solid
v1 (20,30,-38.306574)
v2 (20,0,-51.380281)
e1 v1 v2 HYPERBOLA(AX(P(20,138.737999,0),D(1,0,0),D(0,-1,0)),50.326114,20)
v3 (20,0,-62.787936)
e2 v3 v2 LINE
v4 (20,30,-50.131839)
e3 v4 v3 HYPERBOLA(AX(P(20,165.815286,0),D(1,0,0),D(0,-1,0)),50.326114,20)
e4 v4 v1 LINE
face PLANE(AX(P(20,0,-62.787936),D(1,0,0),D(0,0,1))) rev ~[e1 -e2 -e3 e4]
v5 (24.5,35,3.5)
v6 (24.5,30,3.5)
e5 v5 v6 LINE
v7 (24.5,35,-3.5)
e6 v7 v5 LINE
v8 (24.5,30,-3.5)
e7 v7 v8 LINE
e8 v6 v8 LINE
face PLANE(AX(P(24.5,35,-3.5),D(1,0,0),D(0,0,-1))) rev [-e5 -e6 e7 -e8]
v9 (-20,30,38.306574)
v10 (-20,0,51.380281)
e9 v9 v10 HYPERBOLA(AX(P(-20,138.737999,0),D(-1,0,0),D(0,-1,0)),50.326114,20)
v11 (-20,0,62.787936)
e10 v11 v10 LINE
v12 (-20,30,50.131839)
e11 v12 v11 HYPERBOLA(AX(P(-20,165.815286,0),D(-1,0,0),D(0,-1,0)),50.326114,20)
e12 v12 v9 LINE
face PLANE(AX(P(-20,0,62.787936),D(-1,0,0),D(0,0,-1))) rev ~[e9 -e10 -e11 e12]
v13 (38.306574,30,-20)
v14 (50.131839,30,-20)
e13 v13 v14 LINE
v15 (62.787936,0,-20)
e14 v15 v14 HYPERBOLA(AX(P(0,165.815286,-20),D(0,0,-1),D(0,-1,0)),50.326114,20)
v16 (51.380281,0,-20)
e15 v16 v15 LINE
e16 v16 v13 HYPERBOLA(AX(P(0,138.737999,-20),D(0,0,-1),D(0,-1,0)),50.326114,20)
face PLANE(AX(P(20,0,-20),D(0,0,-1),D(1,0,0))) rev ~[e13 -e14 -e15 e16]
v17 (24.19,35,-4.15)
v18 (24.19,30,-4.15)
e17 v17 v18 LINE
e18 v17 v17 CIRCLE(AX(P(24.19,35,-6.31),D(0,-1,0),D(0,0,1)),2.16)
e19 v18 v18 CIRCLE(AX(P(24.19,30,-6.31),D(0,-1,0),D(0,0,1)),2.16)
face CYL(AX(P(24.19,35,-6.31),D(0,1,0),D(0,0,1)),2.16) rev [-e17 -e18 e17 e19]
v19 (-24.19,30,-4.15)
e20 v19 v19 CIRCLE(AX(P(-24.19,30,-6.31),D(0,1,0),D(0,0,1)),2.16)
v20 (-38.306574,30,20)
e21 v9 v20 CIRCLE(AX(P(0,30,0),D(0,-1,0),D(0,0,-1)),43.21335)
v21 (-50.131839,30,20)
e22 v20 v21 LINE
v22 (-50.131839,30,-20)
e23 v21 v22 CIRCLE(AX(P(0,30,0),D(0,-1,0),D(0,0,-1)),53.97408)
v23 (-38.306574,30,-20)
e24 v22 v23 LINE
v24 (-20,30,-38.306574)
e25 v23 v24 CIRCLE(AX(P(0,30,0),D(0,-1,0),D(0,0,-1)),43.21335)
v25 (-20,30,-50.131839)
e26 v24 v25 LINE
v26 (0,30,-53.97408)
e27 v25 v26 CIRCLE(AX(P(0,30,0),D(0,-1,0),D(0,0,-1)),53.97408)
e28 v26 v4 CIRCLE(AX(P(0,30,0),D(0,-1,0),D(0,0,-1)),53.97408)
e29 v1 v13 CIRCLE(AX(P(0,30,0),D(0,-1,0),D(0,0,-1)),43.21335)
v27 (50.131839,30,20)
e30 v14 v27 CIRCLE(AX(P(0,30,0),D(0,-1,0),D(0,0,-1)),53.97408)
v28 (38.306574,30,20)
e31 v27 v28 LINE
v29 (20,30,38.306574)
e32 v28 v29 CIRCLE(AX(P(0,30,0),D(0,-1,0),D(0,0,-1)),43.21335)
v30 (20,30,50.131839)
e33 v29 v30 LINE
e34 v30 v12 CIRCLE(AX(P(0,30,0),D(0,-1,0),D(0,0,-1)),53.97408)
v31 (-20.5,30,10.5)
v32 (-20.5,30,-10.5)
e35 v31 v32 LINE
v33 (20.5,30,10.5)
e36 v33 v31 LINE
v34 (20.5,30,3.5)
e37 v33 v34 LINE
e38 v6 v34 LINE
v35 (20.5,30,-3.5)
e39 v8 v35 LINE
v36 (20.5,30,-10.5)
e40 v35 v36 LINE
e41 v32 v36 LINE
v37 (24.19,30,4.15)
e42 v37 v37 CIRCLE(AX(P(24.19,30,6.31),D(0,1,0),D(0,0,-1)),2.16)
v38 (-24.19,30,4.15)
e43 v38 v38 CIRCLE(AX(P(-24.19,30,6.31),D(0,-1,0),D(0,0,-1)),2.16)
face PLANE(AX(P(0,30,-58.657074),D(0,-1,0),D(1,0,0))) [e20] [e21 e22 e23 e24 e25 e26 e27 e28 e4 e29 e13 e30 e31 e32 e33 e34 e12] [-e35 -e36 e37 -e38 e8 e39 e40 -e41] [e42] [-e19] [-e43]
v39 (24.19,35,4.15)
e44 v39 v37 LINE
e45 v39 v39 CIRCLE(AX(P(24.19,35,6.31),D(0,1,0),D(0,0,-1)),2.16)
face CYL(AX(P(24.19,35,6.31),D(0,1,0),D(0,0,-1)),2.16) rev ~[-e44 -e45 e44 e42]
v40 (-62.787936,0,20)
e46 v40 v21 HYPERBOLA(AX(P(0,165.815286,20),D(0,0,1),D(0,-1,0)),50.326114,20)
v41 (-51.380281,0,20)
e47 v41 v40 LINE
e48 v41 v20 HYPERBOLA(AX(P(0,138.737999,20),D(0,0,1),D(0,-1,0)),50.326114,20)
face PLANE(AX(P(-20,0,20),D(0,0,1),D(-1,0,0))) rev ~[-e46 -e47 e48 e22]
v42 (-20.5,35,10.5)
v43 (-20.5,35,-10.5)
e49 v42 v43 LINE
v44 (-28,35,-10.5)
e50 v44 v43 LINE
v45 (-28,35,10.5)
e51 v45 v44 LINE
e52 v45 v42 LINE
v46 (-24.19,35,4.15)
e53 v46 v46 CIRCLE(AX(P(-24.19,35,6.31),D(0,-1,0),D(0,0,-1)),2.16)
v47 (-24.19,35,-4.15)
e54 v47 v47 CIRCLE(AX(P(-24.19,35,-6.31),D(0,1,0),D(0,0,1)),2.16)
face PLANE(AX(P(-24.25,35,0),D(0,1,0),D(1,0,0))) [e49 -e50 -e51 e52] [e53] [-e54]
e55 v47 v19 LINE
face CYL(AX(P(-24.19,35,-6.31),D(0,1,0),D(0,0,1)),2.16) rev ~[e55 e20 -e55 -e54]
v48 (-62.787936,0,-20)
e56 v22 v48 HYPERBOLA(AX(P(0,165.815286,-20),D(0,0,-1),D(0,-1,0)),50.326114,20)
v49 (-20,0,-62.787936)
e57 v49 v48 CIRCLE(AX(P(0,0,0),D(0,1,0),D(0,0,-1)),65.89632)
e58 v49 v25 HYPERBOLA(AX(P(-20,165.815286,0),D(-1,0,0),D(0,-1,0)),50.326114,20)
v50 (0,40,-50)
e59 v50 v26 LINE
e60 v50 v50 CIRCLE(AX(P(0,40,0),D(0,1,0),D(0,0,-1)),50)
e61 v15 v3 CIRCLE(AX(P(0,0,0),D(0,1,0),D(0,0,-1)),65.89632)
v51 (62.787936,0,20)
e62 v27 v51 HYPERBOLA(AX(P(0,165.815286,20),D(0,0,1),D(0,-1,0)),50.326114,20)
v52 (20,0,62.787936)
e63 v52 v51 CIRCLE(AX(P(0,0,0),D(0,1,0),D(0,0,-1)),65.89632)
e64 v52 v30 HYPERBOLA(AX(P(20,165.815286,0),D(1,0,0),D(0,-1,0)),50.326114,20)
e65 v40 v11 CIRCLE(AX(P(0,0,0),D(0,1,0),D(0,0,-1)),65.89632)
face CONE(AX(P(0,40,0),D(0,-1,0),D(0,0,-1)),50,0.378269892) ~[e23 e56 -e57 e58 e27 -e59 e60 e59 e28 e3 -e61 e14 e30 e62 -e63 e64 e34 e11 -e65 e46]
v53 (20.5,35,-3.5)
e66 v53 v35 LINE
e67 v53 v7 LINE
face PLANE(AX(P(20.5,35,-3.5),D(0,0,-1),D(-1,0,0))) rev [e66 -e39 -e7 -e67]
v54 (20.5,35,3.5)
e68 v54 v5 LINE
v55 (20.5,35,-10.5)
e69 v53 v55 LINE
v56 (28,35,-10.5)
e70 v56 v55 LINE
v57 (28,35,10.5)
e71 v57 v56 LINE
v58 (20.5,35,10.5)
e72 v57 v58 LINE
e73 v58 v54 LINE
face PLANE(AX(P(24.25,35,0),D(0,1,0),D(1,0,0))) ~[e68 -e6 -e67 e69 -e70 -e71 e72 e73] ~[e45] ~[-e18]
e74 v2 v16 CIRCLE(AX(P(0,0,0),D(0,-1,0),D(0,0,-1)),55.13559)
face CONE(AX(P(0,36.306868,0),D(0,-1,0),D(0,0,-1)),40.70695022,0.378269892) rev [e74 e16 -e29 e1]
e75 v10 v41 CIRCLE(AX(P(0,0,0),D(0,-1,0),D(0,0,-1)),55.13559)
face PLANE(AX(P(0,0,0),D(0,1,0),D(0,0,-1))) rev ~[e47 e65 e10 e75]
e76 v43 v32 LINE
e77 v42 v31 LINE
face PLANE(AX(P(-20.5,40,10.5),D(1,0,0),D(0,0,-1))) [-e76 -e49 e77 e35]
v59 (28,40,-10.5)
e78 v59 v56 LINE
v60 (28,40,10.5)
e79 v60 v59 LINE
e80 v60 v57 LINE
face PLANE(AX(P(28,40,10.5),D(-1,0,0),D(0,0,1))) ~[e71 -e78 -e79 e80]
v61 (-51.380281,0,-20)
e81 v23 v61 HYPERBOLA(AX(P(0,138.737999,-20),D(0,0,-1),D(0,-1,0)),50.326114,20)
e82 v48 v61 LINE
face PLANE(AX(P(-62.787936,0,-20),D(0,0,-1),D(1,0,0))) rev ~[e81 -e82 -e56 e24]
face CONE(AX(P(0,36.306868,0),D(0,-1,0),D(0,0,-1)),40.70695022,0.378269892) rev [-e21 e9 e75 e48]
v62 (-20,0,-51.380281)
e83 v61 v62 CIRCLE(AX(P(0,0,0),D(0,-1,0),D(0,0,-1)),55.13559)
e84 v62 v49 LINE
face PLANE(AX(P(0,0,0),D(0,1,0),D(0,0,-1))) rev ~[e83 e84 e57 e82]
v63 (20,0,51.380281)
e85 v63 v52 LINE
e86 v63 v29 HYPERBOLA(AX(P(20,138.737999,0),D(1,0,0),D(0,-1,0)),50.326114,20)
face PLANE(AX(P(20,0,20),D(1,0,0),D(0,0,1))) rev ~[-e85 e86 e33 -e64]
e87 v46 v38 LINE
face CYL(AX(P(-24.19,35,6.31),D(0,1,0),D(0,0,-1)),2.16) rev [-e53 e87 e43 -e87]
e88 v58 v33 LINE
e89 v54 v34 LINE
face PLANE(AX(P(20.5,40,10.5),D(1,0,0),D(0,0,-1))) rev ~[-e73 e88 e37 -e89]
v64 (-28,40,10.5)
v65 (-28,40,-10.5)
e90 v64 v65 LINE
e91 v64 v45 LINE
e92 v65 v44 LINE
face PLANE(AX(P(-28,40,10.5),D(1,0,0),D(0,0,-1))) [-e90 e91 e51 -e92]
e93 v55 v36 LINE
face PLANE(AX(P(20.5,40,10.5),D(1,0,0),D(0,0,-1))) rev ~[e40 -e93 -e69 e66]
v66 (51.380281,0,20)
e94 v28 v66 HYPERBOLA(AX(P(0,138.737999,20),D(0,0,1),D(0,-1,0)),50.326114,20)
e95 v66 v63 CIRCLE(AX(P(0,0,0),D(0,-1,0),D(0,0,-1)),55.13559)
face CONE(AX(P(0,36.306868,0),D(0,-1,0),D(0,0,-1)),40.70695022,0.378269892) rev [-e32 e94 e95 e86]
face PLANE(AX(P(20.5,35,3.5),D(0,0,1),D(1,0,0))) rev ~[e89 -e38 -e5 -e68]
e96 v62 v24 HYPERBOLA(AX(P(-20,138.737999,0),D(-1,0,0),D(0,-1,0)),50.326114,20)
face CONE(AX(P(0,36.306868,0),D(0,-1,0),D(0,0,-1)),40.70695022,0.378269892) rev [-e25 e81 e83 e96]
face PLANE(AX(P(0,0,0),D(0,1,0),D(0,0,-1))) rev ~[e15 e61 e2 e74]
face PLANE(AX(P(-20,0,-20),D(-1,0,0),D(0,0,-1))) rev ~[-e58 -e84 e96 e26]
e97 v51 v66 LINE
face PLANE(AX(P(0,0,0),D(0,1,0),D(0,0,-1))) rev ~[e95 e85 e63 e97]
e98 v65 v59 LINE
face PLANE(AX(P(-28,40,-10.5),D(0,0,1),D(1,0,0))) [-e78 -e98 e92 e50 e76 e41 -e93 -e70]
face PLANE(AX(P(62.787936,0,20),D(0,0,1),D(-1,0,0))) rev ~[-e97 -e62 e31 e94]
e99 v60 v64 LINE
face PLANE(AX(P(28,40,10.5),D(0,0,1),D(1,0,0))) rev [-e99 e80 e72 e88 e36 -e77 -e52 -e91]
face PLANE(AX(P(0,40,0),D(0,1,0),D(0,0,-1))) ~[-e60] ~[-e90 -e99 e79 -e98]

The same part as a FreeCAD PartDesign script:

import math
import FreeCAD as App
import Part
import Sketcher

V = App.Vector


def faces_at(feature, points):
    """Names of the faces that lie closest to the given points."""
    faces = feature.Shape.Faces
    near = lambda p: min(range(len(faces)), key=lambda i: faces[i].distToShape(Part.Vertex(*p))[0])
    return sorted({f"Face{near(p) + 1}" for p in points})


def add_polygon(sketch, points):
    """Adds a closed chain of lines whose ends are joined by coincident constraints."""
    first, n = sketch.GeometryCount, len(points)
    for a, b in zip(points, points[1:] + points[:1]):
        sketch.addGeometry(Part.LineSegment(App.Vector(*a, 0), App.Vector(*b, 0)), False)
    for i in range(n):
        sketch.addConstraint(Sketcher.Constraint("Coincident", first + i, 2, first + (i + 1) % n, 1))

doc = App.newDocument("Part")
params = doc.addObject("Spreadsheet::Sheet", "Params")
for row, (alias, value) in enumerate([
    ("sketch1_width", "50 mm"),
    ("sketch1_height", "40 mm"),
    ("revolution_angle", "360 deg"),
    ("thickness_wall", "10 mm"),
    ("sketch2_width", "41 mm"),
    ("sketch2_height", "21 mm"),
    ("pocket1_length", "10 mm"),
    ("sketch3_height", "21 mm"),
    ("sketch3_width", "7.5 mm"),
    ("pocket2_length", "5 mm"),
    ("sketch4_diameter", "4.32 mm"),
    ("pocket3_length", "5 mm"),
    ("sketch5_diameter", "4.32 mm"),
    ("pocket4_length", "5 mm"),
    ("sketch6_width", "4 mm"),
    ("sketch6_height", "3.5 mm"),
    ("pocket5_length", "10 mm"),
    ("sketch7_width", "40 mm"),
    ("pocket6_length", "30 mm"),
], start=1):
    params.set(f"A{row}", alias)
    params.set(f"B{row}", "=" + value)
    params.setAlias(f"B{row}", alias)

body = doc.addObject("PartDesign::Body", "Body")

# Sketch on XY plane
sketch1 = doc.addObject("Sketcher::SketchObject", "Sketch")
body.addObject(sketch1)
sketch1.AttachmentSupport = (doc.XY_Plane, [""])
sketch1.MapMode = "FlatFace"
add_polygon(sketch1, [(0, 0), (0, 40), (-50, 40), (-66, 0)])  # lines 0-3
sketch1.addConstraint(Sketcher.Constraint("Vertical", 0))
sketch1.addConstraint(Sketcher.Constraint("Horizontal", 1))
sketch1.addConstraint(Sketcher.Constraint("Horizontal", 3))
sketch1.addConstraint(Sketcher.Constraint("Coincident", 3, 2, -1, 1))
sketch1.addConstraint(Sketcher.Constraint("DistanceX", 1, 2, 1, 1, 50.0))
sketch1.addConstraint(Sketcher.Constraint("DistanceY", 0, 1, 0, 2, 40.0))
sketch1.addConstraint(Sketcher.Constraint("DistanceX", 3, 1, 3, 2, 65.89632))
sketch1.setExpression("Constraints[8]", "Params.sketch1_width")
sketch1.setExpression("Constraints[9]", "Params.sketch1_height")
revolution = doc.addObject("PartDesign::Revolution", "Revolution")
body.addObject(revolution)
revolution.Profile = sketch1
revolution.ReferenceAxis = (sketch1, ["V_Axis"])
revolution.setExpression("Angle", "Params.revolution_angle")
doc.recompute()

thickness = doc.addObject("PartDesign::Thickness", "Thickness")
body.addObject(thickness)
thickness.Base = (revolution, faces_at(revolution, [(0, 0, 0)]))
thickness.setExpression("Value", "Params.thickness_wall")
thickness.Reversed = True
thickness.Join = "Intersection"

# Sketch on XZ plane
sketch2 = doc.addObject("Sketcher::SketchObject", "Sketch001")
body.addObject(sketch2)
sketch2.AttachmentSupport = (doc.XZ_Plane, [""])
sketch2.MapMode = "FlatFace"
sketch2.AttachmentOffset = App.Placement(V(0, 0, -40), App.Rotation())
add_polygon(sketch2, [(-20, -10), (-20, 10), (20, 10), (20, -10)])  # lines 0-3
sketch2.addConstraint(Sketcher.Constraint("Vertical", 0))
sketch2.addConstraint(Sketcher.Constraint("Horizontal", 1))
sketch2.addConstraint(Sketcher.Constraint("Vertical", 2))
sketch2.addConstraint(Sketcher.Constraint("Horizontal", 3))
sketch2.addConstraint(Sketcher.Constraint("Symmetric", 0, 2, 2, 2, -1, 1))
sketch2.addConstraint(Sketcher.Constraint("DistanceX", 1, 1, 1, 2, 41.0))
sketch2.addConstraint(Sketcher.Constraint("DistanceY", 0, 1, 0, 2, 21.0))
sketch2.setExpression("Constraints[9]", "Params.sketch2_width")
sketch2.setExpression("Constraints[10]", "Params.sketch2_height")
pocket1 = doc.addObject("PartDesign::Pocket", "Pocket")
body.addObject(pocket1)
pocket1.Profile = sketch2
pocket1.setExpression("Length", "Params.pocket1_length")
pocket1.Reversed = True

# Sketch on XZ plane
sketch3 = doc.addObject("Sketcher::SketchObject", "Sketch002")
body.addObject(sketch3)
sketch3.AttachmentSupport = (doc.XZ_Plane, [""])
sketch3.MapMode = "FlatFace"
sketch3.AttachmentOffset = App.Placement(V(0, 0, -40), App.Rotation())
add_polygon(sketch3, [(-28, -10), (-28, 10), (-20, 10), (-20, -10)])  # lines 0-3
sketch3.addConstraint(Sketcher.Constraint("Vertical", 0))
sketch3.addConstraint(Sketcher.Constraint("Horizontal", 1))
sketch3.addConstraint(Sketcher.Constraint("Vertical", 2))
sketch3.addConstraint(Sketcher.Constraint("Horizontal", 3))
sketch3.addConstraint(Sketcher.Constraint("DistanceY", 0, 1, 0, 2, 21.0))
sketch3.addConstraint(Sketcher.Constraint("DistanceX", 1, 1, 1, 2, 7.5))
sketch3.addConstraint(Sketcher.Constraint("DistanceX", 0, 2, -1, 1, 28.0))
sketch3.addConstraint(Sketcher.Constraint("DistanceY", -1, 1, 0, 2, 10.5))
sketch3.setExpression("Constraints[8]", "Params.sketch3_height")
sketch3.setExpression("Constraints[9]", "Params.sketch3_width")
pocket2 = doc.addObject("PartDesign::Pocket", "Pocket001")
body.addObject(pocket2)
pocket2.Profile = sketch3
pocket2.setExpression("Length", "Params.pocket2_length")
pocket2.Reversed = True

# Sketch on XZ plane
sketch4 = doc.addObject("Sketcher::SketchObject", "Sketch003")
body.addObject(sketch4)
sketch4.AttachmentSupport = (doc.XZ_Plane, [""])
sketch4.MapMode = "FlatFace"
sketch4.AttachmentOffset = App.Placement(V(0, 0, -35), App.Rotation())
sketch4.addGeometry(Part.Circle(V(-24.2, -6.3, 0), V(0, 0, 1), 2.2), False)
sketch4.addConstraint(Sketcher.Constraint("Diameter", 0, 4.32))
sketch4.addConstraint(Sketcher.Constraint("DistanceX", 0, 3, -1, 1, 24.19))
sketch4.addConstraint(Sketcher.Constraint("DistanceY", 0, 3, -1, 1, 6.31))
sketch4.setExpression("Constraints[0]", "Params.sketch4_diameter")
pocket3 = doc.addObject("PartDesign::Pocket", "Pocket002")
body.addObject(pocket3)
pocket3.Profile = sketch4
pocket3.setExpression("Length", "Params.pocket3_length")
pocket3.Reversed = True
doc.recompute()

mirrored = doc.addObject("PartDesign::Mirrored", "Mirrored")
body.addObject(mirrored)
mirrored.Originals = [pocket3]
mirrored.MirrorPlane = (doc.XY_Plane, [""])
body.Tip = mirrored
doc.recompute()

mirrored2 = doc.addObject("PartDesign::Mirrored", "Mirrored001")
body.addObject(mirrored2)
mirrored2.Originals = [pocket2, pocket3]
mirrored2.MirrorPlane = (doc.YZ_Plane, [""])
body.Tip = mirrored2

# Sketch on XZ plane
sketch5 = doc.addObject("Sketcher::SketchObject", "Sketch004")
body.addObject(sketch5)
sketch5.AttachmentSupport = (doc.XZ_Plane, [""])
sketch5.MapMode = "FlatFace"
sketch5.AttachmentOffset = App.Placement(V(0, 0, -35), App.Rotation())
sketch5.addGeometry(Part.Circle(V(24.2, 6.3, 0), V(0, 0, 1), 2.2), False)
sketch5.addConstraint(Sketcher.Constraint("Diameter", 0, 4.32))
sketch5.addConstraint(Sketcher.Constraint("DistanceX", -1, 1, 0, 3, 24.19))
sketch5.addConstraint(Sketcher.Constraint("DistanceY", -1, 1, 0, 3, 6.31))
sketch5.setExpression("Constraints[0]", "Params.sketch5_diameter")
pocket4 = doc.addObject("PartDesign::Pocket", "Pocket003")
body.addObject(pocket4)
pocket4.Profile = sketch5
pocket4.setExpression("Length", "Params.pocket4_length")
pocket4.Reversed = True

# Sketch on XZ plane
sketch6 = doc.addObject("Sketcher::SketchObject", "Sketch005")
body.addObject(sketch6)
sketch6.AttachmentSupport = (doc.XZ_Plane, [""])
sketch6.MapMode = "FlatFace"
sketch6.AttachmentOffset = App.Placement(V(0, 0, -35), App.Rotation())
add_polygon(sketch6, [(20.5, 0), (20.5, 3.5), (24.5, 3.5), (24.5, 0)])  # lines 0-3
sketch6.addConstraint(Sketcher.Constraint("Vertical", 0))
sketch6.addConstraint(Sketcher.Constraint("Horizontal", 1))
sketch6.addConstraint(Sketcher.Constraint("Vertical", 2))
sketch6.addConstraint(Sketcher.Constraint("Horizontal", 3))
sketch6.addConstraint(Sketcher.Constraint("PointOnObject", 2, 2, -1))
sketch6.addConstraint(Sketcher.Constraint("DistanceX", 1, 1, 1, 2, 4.0))
sketch6.addConstraint(Sketcher.Constraint("DistanceY", 0, 1, 0, 2, 3.5))
sketch6.addConstraint(Sketcher.Constraint("DistanceX", -1, 1, 0, 2, 20.5))
sketch6.setExpression("Constraints[9]", "Params.sketch6_width")
sketch6.setExpression("Constraints[10]", "Params.sketch6_height")
pocket5 = doc.addObject("PartDesign::Pocket", "Pocket004")
body.addObject(pocket5)
pocket5.Profile = sketch6
pocket5.setExpression("Length", "Params.pocket5_length")
pocket5.Reversed = True
doc.recompute()

mirrored3 = doc.addObject("PartDesign::Mirrored", "Mirrored002")
body.addObject(mirrored3)
mirrored3.Originals = [pocket5]
mirrored3.MirrorPlane = (doc.XY_Plane, [""])
body.Tip = mirrored3

# Sketch on XZ plane
sketch7 = doc.addObject("Sketcher::SketchObject", "Sketch006")
body.addObject(sketch7)
sketch7.AttachmentSupport = (doc.XZ_Plane, [""])
sketch7.MapMode = "FlatFace"
sketch7.addGeometry(Part.LineSegment(V(-20, 20, 0), V(20, 20, 0)), False)
sketch7.addGeometry(Part.LineSegment(V(20, 20, 0), V(20, 63, 0)), False)
sketch7.addGeometry(Part.ArcOfCircle(Part.Circle(V(0, 0, 0), V(0, 0, 1), 66), math.radians(72), math.radians(108)), False)
sketch7.addGeometry(Part.LineSegment(V(-20, 63, 0), V(-20, 20, 0)), False)
sketch7.addGeometry(Part.ArcOfCircle(Part.Circle(V(0, 0, 0), V(0, 0, 1), 66), math.radians(-108), math.radians(-72)), False)
sketch7.addGeometry(Part.LineSegment(V(20, -63, 0), V(20, -20, 0)), False)
sketch7.addGeometry(Part.LineSegment(V(20, -20, 0), V(-20, -20, 0)), False)
sketch7.addGeometry(Part.LineSegment(V(-20, -20, 0), V(-20, -63, 0)), False)
sketch7.addGeometry(Part.LineSegment(V(-20, -20, 0), V(-20, 20, 0)), False)
sketch7.addGeometry(Part.LineSegment(V(-20, 20, 0), V(-63, 20, 0)), False)
sketch7.addGeometry(Part.ArcOfCircle(Part.Circle(V(0, 0, 0), V(0, 0, 1), 66), math.radians(162), math.radians(198)), False)
sketch7.addGeometry(Part.LineSegment(V(-63, -20, 0), V(-20, -20, 0)), False)
sketch7.addGeometry(Part.ArcOfCircle(Part.Circle(V(0, 0, 0), V(0, 0, 1), 66), math.radians(-17.67), math.radians(0)), False)
sketch7.addGeometry(Part.ArcOfCircle(Part.Circle(V(0, 0, 0), V(0, 0, 1), 66), math.radians(0), math.radians(17.67)), False)
sketch7.addGeometry(Part.LineSegment(V(63, 20, 0), V(20, 20, 0)), False)
sketch7.addGeometry(Part.LineSegment(V(20, 20, 0), V(20, -20, 0)), False)
sketch7.addGeometry(Part.LineSegment(V(20, -20, 0), V(63, -20, 0)), False)
sketch7.addConstraint(Sketcher.Constraint("Coincident", 0, 2, 1, 1))
sketch7.addConstraint(Sketcher.Constraint("Coincident", 1, 2, 2, 1))
sketch7.addConstraint(Sketcher.Constraint("Coincident", 2, 2, 3, 1))
sketch7.addConstraint(Sketcher.Constraint("Coincident", 3, 2, 0, 1))
sketch7.addConstraint(Sketcher.Constraint("Coincident", 4, 2, 5, 1))
sketch7.addConstraint(Sketcher.Constraint("Coincident", 5, 2, 6, 1))
sketch7.addConstraint(Sketcher.Constraint("Coincident", 6, 2, 7, 1))
sketch7.addConstraint(Sketcher.Constraint("Coincident", 7, 2, 4, 1))
sketch7.addConstraint(Sketcher.Constraint("Coincident", 8, 2, 9, 1))
sketch7.addConstraint(Sketcher.Constraint("Coincident", 9, 2, 10, 1))
sketch7.addConstraint(Sketcher.Constraint("Coincident", 10, 2, 11, 1))
sketch7.addConstraint(Sketcher.Constraint("Coincident", 11, 2, 8, 1))
sketch7.addConstraint(Sketcher.Constraint("Tangent", 12, 2, 13, 1))
sketch7.addConstraint(Sketcher.Constraint("Coincident", 13, 2, 14, 1))
sketch7.addConstraint(Sketcher.Constraint("Coincident", 14, 2, 15, 1))
sketch7.addConstraint(Sketcher.Constraint("Coincident", 15, 2, 16, 1))
sketch7.addConstraint(Sketcher.Constraint("Coincident", 16, 2, 12, 1))
sketch7.addConstraint(Sketcher.Constraint("Horizontal", 0))
sketch7.addConstraint(Sketcher.Constraint("Vertical", 1))
sketch7.addConstraint(Sketcher.Constraint("Vertical", 3))
sketch7.addConstraint(Sketcher.Constraint("Vertical", 5))
sketch7.addConstraint(Sketcher.Constraint("Horizontal", 6))
sketch7.addConstraint(Sketcher.Constraint("Vertical", 7))
sketch7.addConstraint(Sketcher.Constraint("Vertical", 8))
sketch7.addConstraint(Sketcher.Constraint("Horizontal", 9))
sketch7.addConstraint(Sketcher.Constraint("Horizontal", 11))
sketch7.addConstraint(Sketcher.Constraint("Horizontal", 14))
sketch7.addConstraint(Sketcher.Constraint("Vertical", 15))
sketch7.addConstraint(Sketcher.Constraint("Horizontal", 16))
sketch7.addConstraint(Sketcher.Constraint("Coincident", 2, 3, -1, 1))
sketch7.addConstraint(Sketcher.Constraint("Coincident", 4, 3, -1, 1))
sketch7.addConstraint(Sketcher.Constraint("Coincident", 10, 3, -1, 1))
sketch7.addConstraint(Sketcher.Constraint("Coincident", 12, 3, -1, 1))
sketch7.addConstraint(Sketcher.Constraint("Coincident", 8, 2, 3, 2))
sketch7.addConstraint(Sketcher.Constraint("Coincident", 11, 2, 6, 2))
sketch7.addConstraint(Sketcher.Constraint("Coincident", 14, 2, 0, 2))
sketch7.addConstraint(Sketcher.Constraint("Coincident", 15, 2, 5, 2))
sketch7.addConstraint(Sketcher.Constraint("Equal", 2, 4))
sketch7.addConstraint(Sketcher.Constraint("Equal", 4, 10))
sketch7.addConstraint(Sketcher.Constraint("Equal", 10, 12))
sketch7.addConstraint(Sketcher.Constraint("Equal", 12, 13))
sketch7.addConstraint(Sketcher.Constraint("Symmetric", 3, 2, 5, 2, -1, 1))
sketch7.addConstraint(Sketcher.Constraint("PointOnObject", 12, 2, -1))
sketch7.addConstraint(Sketcher.Constraint("Equal", 16, 1))
sketch7.addConstraint(Sketcher.Constraint("DistanceX", 0, 1, 0, 2, 40.0))
sketch7.addConstraint(Sketcher.Constraint("Radius", 2, 65.89632))
sketch7.setExpression("Constraints[44]", "Params.sketch7_width")
pocket6 = doc.addObject("PartDesign::Pocket", "Pocket005")
body.addObject(pocket6)
pocket6.Profile = sketch7
pocket6.setExpression("Length", "Params.pocket6_length")

doc.recompute()
